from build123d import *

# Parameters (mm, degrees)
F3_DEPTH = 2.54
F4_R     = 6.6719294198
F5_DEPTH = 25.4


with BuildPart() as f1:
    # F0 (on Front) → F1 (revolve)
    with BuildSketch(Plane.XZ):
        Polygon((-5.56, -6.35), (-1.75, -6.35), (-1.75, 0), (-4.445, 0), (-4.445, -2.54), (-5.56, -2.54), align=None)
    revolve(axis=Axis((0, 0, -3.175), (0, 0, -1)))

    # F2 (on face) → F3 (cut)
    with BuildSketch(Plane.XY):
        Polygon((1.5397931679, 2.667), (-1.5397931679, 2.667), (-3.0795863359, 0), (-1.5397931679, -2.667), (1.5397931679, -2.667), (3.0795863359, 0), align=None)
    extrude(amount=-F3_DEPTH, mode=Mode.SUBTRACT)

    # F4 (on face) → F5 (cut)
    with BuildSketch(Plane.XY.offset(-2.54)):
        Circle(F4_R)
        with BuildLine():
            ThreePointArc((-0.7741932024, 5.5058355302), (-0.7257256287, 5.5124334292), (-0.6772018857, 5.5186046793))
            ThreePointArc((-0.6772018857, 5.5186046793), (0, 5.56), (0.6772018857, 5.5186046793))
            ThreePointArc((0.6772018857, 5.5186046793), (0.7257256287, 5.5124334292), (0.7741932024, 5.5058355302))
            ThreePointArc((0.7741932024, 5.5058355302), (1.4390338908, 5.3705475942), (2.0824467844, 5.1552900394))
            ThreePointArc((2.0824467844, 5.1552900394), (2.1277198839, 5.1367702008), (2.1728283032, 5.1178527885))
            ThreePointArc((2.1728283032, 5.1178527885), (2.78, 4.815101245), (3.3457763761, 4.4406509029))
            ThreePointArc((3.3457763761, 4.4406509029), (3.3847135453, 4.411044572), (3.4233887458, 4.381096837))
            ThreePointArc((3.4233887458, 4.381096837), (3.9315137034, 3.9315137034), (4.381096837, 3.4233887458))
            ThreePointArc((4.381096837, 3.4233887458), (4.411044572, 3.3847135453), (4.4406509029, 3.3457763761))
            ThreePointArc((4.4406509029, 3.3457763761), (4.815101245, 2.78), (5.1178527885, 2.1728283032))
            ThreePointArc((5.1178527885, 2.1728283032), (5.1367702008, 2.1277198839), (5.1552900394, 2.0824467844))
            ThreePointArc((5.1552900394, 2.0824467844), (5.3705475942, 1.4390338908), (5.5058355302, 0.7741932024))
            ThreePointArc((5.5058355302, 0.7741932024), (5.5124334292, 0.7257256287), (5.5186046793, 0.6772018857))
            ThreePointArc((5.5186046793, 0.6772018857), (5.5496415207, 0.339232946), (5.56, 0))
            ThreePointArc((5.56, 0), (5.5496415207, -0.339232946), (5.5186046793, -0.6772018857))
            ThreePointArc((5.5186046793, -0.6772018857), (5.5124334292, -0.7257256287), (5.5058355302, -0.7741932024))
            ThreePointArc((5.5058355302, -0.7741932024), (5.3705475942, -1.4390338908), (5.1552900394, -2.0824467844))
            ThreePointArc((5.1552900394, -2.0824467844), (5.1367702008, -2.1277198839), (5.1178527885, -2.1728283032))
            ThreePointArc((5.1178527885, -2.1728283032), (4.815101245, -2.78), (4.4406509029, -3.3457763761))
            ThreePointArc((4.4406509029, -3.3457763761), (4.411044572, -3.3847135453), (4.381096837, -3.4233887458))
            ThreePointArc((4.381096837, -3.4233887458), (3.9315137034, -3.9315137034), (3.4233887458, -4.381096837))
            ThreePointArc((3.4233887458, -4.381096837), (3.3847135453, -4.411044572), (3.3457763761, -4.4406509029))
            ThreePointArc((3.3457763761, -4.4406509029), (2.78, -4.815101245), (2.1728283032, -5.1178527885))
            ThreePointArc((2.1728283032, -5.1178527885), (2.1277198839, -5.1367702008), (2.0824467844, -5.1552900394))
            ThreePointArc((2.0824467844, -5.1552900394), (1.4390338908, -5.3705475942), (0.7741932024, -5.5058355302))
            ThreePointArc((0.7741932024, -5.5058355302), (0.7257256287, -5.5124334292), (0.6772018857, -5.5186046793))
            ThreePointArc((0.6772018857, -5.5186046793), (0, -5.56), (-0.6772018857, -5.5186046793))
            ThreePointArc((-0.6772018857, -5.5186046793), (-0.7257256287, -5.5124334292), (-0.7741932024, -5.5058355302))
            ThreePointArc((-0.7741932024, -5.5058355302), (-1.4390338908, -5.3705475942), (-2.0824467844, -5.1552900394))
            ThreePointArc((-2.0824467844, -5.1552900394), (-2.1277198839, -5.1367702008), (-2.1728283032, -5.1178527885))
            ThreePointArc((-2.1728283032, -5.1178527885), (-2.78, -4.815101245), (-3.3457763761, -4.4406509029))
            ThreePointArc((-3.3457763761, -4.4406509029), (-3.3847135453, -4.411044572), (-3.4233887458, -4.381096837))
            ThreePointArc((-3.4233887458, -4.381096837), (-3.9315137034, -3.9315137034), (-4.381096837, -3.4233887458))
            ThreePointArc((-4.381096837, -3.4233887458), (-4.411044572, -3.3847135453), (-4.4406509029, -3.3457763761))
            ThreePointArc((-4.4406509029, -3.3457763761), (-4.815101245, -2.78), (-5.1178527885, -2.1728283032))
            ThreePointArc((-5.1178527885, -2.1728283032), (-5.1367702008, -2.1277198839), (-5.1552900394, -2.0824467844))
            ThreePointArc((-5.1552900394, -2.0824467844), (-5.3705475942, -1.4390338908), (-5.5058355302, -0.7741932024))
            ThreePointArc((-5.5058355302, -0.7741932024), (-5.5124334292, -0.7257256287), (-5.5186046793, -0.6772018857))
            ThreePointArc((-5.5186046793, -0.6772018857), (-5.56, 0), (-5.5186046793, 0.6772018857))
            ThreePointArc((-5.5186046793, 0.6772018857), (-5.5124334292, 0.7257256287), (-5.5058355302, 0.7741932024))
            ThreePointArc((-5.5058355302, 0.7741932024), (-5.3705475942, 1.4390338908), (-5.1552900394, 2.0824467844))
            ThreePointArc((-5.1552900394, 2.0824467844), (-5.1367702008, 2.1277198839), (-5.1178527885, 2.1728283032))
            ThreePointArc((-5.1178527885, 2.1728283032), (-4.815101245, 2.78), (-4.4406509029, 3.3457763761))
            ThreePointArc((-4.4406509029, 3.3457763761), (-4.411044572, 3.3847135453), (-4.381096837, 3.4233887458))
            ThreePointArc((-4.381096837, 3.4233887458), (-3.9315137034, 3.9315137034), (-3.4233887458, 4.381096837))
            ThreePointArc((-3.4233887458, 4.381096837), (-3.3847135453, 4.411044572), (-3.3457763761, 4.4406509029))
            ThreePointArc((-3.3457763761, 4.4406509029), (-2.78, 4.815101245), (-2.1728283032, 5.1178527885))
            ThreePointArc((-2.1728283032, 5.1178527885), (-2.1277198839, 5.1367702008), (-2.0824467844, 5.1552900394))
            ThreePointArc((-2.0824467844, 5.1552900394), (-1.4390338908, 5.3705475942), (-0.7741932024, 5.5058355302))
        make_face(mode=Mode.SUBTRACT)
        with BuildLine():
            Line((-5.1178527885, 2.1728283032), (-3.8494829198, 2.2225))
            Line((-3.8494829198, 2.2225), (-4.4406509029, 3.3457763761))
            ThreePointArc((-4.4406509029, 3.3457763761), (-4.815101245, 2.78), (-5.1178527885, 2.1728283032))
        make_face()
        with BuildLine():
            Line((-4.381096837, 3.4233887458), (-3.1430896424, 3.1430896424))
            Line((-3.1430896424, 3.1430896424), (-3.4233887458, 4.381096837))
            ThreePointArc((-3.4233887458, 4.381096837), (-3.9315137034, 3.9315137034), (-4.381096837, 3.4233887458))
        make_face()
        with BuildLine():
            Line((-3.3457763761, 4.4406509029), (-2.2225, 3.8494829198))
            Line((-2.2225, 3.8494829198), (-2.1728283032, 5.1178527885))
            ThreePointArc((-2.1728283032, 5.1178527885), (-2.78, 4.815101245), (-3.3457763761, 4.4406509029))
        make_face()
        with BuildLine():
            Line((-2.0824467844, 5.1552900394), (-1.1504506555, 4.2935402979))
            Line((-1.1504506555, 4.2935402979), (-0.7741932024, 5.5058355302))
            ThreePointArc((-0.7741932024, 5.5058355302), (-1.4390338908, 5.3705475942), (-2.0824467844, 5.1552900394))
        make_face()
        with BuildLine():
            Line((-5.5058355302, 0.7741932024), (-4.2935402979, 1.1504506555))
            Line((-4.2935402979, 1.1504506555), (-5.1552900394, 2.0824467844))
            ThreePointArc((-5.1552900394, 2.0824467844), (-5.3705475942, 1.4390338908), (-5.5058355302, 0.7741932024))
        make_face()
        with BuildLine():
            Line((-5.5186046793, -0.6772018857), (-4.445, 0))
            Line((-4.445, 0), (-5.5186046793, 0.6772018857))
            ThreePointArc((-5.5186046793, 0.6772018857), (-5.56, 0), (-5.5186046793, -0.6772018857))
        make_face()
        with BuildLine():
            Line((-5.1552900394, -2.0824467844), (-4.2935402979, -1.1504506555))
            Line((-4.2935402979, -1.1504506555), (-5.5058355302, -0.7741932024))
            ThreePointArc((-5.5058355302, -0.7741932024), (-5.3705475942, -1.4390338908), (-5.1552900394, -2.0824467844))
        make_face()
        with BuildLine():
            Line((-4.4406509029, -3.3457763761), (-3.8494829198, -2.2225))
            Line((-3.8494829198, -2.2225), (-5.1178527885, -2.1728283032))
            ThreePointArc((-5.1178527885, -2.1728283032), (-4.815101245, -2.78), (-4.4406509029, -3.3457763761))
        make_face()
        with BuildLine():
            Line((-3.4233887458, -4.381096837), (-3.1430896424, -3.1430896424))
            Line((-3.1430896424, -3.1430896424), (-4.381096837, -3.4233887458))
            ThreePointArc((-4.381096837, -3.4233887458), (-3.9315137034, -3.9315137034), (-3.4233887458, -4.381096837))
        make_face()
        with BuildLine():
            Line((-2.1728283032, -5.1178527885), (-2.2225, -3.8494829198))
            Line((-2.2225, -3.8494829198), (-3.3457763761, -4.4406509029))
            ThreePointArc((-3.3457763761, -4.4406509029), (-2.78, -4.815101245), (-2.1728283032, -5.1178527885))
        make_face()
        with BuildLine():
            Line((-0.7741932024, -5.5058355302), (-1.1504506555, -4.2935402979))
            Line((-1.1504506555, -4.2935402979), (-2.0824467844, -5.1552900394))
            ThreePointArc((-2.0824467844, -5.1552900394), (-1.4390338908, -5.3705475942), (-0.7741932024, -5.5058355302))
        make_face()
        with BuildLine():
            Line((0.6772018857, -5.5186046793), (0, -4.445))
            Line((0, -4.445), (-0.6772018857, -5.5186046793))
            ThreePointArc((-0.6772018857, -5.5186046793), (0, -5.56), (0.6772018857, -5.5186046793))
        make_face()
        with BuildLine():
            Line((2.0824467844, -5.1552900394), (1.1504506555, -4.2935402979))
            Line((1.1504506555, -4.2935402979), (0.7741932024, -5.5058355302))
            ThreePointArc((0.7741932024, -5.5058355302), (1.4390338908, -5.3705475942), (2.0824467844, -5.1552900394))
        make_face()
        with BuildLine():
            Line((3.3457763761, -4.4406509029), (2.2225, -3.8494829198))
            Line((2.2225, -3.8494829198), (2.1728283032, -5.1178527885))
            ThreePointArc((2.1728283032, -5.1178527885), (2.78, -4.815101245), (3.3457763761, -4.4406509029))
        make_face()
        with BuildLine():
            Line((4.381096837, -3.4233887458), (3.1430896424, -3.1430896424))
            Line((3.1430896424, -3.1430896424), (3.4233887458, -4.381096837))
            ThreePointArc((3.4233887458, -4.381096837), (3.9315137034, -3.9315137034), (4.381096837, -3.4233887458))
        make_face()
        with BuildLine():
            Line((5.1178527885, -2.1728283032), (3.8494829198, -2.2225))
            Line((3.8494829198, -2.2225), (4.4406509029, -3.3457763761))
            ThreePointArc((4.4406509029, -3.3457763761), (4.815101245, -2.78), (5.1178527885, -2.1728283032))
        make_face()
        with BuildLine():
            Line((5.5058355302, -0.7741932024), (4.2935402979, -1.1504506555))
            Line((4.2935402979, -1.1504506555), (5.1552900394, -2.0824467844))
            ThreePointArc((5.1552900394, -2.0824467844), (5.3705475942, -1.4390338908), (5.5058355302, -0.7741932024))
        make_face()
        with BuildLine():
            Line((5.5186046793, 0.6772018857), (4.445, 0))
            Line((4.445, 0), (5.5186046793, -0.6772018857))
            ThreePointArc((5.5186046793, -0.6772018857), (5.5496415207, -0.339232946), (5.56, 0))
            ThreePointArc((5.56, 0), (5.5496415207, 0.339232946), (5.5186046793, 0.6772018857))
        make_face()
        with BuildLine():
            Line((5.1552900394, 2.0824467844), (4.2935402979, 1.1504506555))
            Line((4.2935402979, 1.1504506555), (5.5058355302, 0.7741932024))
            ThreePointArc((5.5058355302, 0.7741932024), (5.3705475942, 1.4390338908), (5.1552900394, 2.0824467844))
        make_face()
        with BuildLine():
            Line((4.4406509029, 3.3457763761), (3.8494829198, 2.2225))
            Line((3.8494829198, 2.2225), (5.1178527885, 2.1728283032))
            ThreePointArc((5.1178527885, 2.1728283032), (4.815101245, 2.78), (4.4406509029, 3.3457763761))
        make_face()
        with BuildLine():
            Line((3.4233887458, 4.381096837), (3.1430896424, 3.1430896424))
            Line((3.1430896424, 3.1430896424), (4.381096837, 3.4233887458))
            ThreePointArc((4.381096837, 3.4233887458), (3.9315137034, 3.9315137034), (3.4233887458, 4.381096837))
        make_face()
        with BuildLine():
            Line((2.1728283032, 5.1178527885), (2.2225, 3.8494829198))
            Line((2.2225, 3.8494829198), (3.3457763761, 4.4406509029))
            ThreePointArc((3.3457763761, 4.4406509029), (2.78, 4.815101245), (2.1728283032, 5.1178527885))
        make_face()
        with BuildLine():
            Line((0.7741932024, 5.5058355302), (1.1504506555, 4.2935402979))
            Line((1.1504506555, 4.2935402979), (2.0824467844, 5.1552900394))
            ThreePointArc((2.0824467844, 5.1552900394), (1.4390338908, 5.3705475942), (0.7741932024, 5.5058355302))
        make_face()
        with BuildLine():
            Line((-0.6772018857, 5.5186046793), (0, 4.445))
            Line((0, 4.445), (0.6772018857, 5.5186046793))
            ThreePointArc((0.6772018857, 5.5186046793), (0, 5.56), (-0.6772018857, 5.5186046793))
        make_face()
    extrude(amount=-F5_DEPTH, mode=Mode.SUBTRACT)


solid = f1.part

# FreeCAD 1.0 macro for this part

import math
import FreeCAD as App
import Part
import Sketcher

V = App.Vector
Q = App.Units.Quantity

doc = App.newDocument("Part")
body = doc.addObject("PartDesign::Body", "Body")

# Sketch on XZ plane
sketch1 = body.newObject("Sketcher::SketchObject", "Sketch")
sketch1.AttachmentSupport = (doc.getObject("XZ_Plane"), [""])
sketch1.MapMode = "FlatFace"
sketch1.addGeometry([
    Part.LineSegment(V(-5.6, -6.3, 0), V(-1.8, -6.3, 0)),  # 0
    Part.LineSegment(V(-1.8, -6.3, 0), V(-1.8, 0, 0)),  # 1
    Part.LineSegment(V(-1.8, 0, 0), V(-4.4, 0, 0)),  # 2
    Part.LineSegment(V(-4.4, 0, 0), V(-4.4, -2.5, 0)),  # 3
    Part.LineSegment(V(-4.4, -2.5, 0), V(-5.6, -2.5, 0)),  # 4
    Part.LineSegment(V(-5.6, -2.5, 0), V(-5.6, -6.3, 0)),  # 5
], False)
sketch1.addConstraint([
    Sketcher.Constraint("Coincident", 0, 2, 1, 1),
    Sketcher.Constraint("Coincident", 1, 2, 2, 1),
    Sketcher.Constraint("Coincident", 2, 2, 3, 1),
    Sketcher.Constraint("Coincident", 3, 2, 4, 1),
    Sketcher.Constraint("Coincident", 4, 2, 5, 1),
    Sketcher.Constraint("Coincident", 5, 2, 0, 1),
    Sketcher.Constraint("Horizontal", 0),
    Sketcher.Constraint("Vertical", 1),
    Sketcher.Constraint("Horizontal", 2),
    Sketcher.Constraint("Vertical", 3),
    Sketcher.Constraint("Horizontal", 4),
    Sketcher.Constraint("Vertical", 5),
    Sketcher.Constraint("PointOnObject", 1, 2, -1),
    Sketcher.Constraint("Equal", 0, 5),
    Sketcher.Constraint("DistanceY", 3, 2, 3, 1, Q("0.1 in")),
    Sketcher.Constraint("DistanceX", 0, 1, 0, 2, Q("0.15 in")),
    Sketcher.Constraint("DistanceX", 2, 2, -1, 1, Q("0.175 in")),
    Sketcher.Constraint("DistanceX", 2, 2, 2, 1, Q("2.695 mm")),
])
revolution = body.newObject("PartDesign::Revolution", "Revolution")
revolution.Profile = sketch1
revolution.ReferenceAxis = (sketch1, ["V_Axis"])
revolution.Angle = 360

# Sketch on XY plane
sketch2 = body.newObject("Sketcher::SketchObject", "Sketch001")
sketch2.AttachmentSupport = (doc.getObject("XY_Plane"), [""])
sketch2.MapMode = "FlatFace"
sketch2.addGeometry([
    Part.LineSegment(V(1.5, 2.7, 0), V(-1.5, 2.7, 0)),  # 0
    Part.LineSegment(V(-1.5, 2.7, 0), V(-3.1, 0, 0)),  # 1
    Part.LineSegment(V(-3.1, 0, 0), V(-1.5, -2.7, 0)),  # 2
    Part.LineSegment(V(-1.5, -2.7, 0), V(1.5, -2.7, 0)),  # 3
    Part.LineSegment(V(1.5, -2.7, 0), V(3.1, 0, 0)),  # 4
    Part.LineSegment(V(3.1, 0, 0), V(1.5, 2.7, 0)),  # 5
], False)
sketch2.addConstraint([
    Sketcher.Constraint("Coincident", 0, 2, 1, 1),
    Sketcher.Constraint("Coincident", 1, 2, 2, 1),
    Sketcher.Constraint("Coincident", 2, 2, 3, 1),
    Sketcher.Constraint("Coincident", 3, 2, 4, 1),
    Sketcher.Constraint("Coincident", 4, 2, 5, 1),
    Sketcher.Constraint("Coincident", 5, 2, 0, 1),
    Sketcher.Constraint("Horizontal", 0),
    Sketcher.Constraint("Horizontal", 3),
    Sketcher.Constraint("Symmetric", 0, 2, 3, 2, -1, 1),
    Sketcher.Constraint("Symmetric", 1, 2, 4, 2, -1, 1),
    Sketcher.Constraint("PointOnObject", 1, 2, -1),
    Sketcher.Constraint("Parallel", 2, 5),
    Sketcher.Constraint("Vertical", 0, 2, 2, 2),
    Sketcher.Constraint("Angle", 1, Q("-120 deg")),
    Sketcher.Constraint("DistanceY", 2, 2, 0, 2, Q("0.21 in")),
    Sketcher.Constraint("DistanceX", 0, 2, 0, 1, Q("3.079586 mm")),
])
pocket1 = body.newObject("PartDesign::Pocket", "Pocket")
pocket1.Profile = sketch2
pocket1.Length = Q("0.1 in")

# Sketch on XY plane
sketch3 = body.newObject("Sketcher::SketchObject", "Sketch002")
sketch3.AttachmentSupport = (doc.getObject("XY_Plane"), [""])
sketch3.MapMode = "FlatFace"
sketch3.AttachmentOffset = App.Placement(V(0, 0, -0.1 * 25.4), App.Rotation())
sketch3.addGeometry([
    Part.Circle(V(0, 0, 0), V(0, 0, 1), 6.67),  # 0
    Part.ArcOfCircle(Part.Circle(V(0, 0, 0), V(0, 0, 1), 5.56), math.radians(97), math.radians(98)),  # 1
    Part.LineSegment(V(-0.68, 5.52, 0), V(0, 4.45, 0)),  # 2
    Part.LineSegment(V(0, 4.45, 0), V(0.68, 5.52, 0)),  # 3
    Part.ArcOfCircle(Part.Circle(V(0, 0, 0), V(0, 0, 1), 5.56), math.radians(82), math.radians(83)),  # 4
    Part.LineSegment(V(0.77, 5.51, 0), V(1.15, 4.29, 0)),  # 5
    Part.LineSegment(V(1.15, 4.29, 0), V(2.08, 5.16, 0)),  # 6
    Part.ArcOfCircle(Part.Circle(V(0, 0, 0), V(0, 0, 1), 5.56), math.radians(67), math.radians(68)),  # 7
    Part.LineSegment(V(2.17, 5.12, 0), V(2.22, 3.85, 0)),  # 8
    Part.LineSegment(V(2.22, 3.85, 0), V(3.35, 4.44, 0)),  # 9
    Part.ArcOfCircle(Part.Circle(V(0, 0, 0), V(0, 0, 1), 5.56), math.radians(52), math.radians(53)),  # 10
    Part.LineSegment(V(3.42, 4.38, 0), V(3.14, 3.14, 0)),  # 11
    Part.LineSegment(V(3.14, 3.14, 0), V(4.38, 3.42, 0)),  # 12
    Part.ArcOfCircle(Part.Circle(V(0, 0, 0), V(0, 0, 1), 5.56), math.radians(37), math.radians(38)),  # 13
    Part.LineSegment(V(4.44, 3.35, 0), V(3.85, 2.22, 0)),  # 14
    Part.LineSegment(V(3.85, 2.22, 0), V(5.12, 2.17, 0)),  # 15
    Part.ArcOfCircle(Part.Circle(V(0, 0, 0), V(0, 0, 1), 5.56), math.radians(22), math.radians(23)),  # 16
    Part.LineSegment(V(5.16, 2.08, 0), V(4.29, 1.15, 0)),  # 17
    Part.LineSegment(V(4.29, 1.15, 0), V(5.51, 0.77, 0)),  # 18
    Part.ArcOfCircle(Part.Circle(V(0, 0, 0), V(0, 0, 1), 5.56), math.radians(7), math.radians(8)),  # 19
    Part.LineSegment(V(5.52, 0.68, 0), V(4.45, 0, 0)),  # 20
    Part.LineSegment(V(4.45, 0, 0), V(5.52, -0.68, 0)),  # 21
    Part.ArcOfCircle(Part.Circle(V(0, 0, 0), V(0, 0, 1), 5.56), math.radians(-8), math.radians(-7)),  # 22
    Part.LineSegment(V(5.51, -0.77, 0), V(4.29, -1.15, 0)),  # 23
    Part.LineSegment(V(4.29, -1.15, 0), V(5.16, -2.08, 0)),  # 24
    Part.ArcOfCircle(Part.Circle(V(0, 0, 0), V(0, 0, 1), 5.56), math.radians(-23), math.radians(-22)),  # 25
    Part.LineSegment(V(5.12, -2.17, 0), V(3.85, -2.22, 0)),  # 26
    Part.LineSegment(V(3.85, -2.22, 0), V(4.44, -3.35, 0)),  # 27
    Part.ArcOfCircle(Part.Circle(V(0, 0, 0), V(0, 0, 1), 5.56), math.radians(-38), math.radians(-37)),  # 28
    Part.LineSegment(V(4.38, -3.42, 0), V(3.14, -3.14, 0)),  # 29
    Part.LineSegment(V(3.14, -3.14, 0), V(3.42, -4.38, 0)),  # 30
    Part.ArcOfCircle(Part.Circle(V(0, 0, 0), V(0, 0, 1), 5.56), math.radians(-53), math.radians(-52)),  # 31
    Part.LineSegment(V(3.35, -4.44, 0), V(2.22, -3.85, 0)),  # 32
    Part.LineSegment(V(2.22, -3.85, 0), V(2.17, -5.12, 0)),  # 33
    Part.ArcOfCircle(Part.Circle(V(0, 0, 0), V(0, 0, 1), 5.56), math.radians(-68), math.radians(-67)),  # 34
    Part.LineSegment(V(2.08, -5.16, 0), V(1.15, -4.29, 0)),  # 35
    Part.LineSegment(V(1.15, -4.29, 0), V(0.77, -5.51, 0)),  # 36
    Part.ArcOfCircle(Part.Circle(V(0, 0, 0), V(0, 0, 1), 5.56), math.radians(-83), math.radians(-82)),  # 37
    Part.LineSegment(V(0.68, -5.52, 0), V(0, -4.45, 0)),  # 38
    Part.LineSegment(V(0, -4.45, 0), V(-0.68, -5.52, 0)),  # 39
    Part.ArcOfCircle(Part.Circle(V(0, 0, 0), V(0, 0, 1), 5.56), math.radians(-98), math.radians(-97)),  # 40
    Part.LineSegment(V(-0.77, -5.51, 0), V(-1.15, -4.29, 0)),  # 41
    Part.LineSegment(V(-1.15, -4.29, 0), V(-2.08, -5.16, 0)),  # 42
    Part.ArcOfCircle(Part.Circle(V(0, 0, 0), V(0, 0, 1), 5.56), math.radians(-113), math.radians(-112)),  # 43
    Part.LineSegment(V(-2.17, -5.12, 0), V(-2.22, -3.85, 0)),  # 44
    Part.LineSegment(V(-2.22, -3.85, 0), V(-3.35, -4.44, 0)),  # 45
    Part.ArcOfCircle(Part.Circle(V(0, 0, 0), V(0, 0, 1), 5.56), math.radians(-128), math.radians(-127)),  # 46
    Part.LineSegment(V(-3.42, -4.38, 0), V(-3.14, -3.14, 0)),  # 47
    Part.LineSegment(V(-3.14, -3.14, 0), V(-4.38, -3.42, 0)),  # 48
    Part.ArcOfCircle(Part.Circle(V(0, 0, 0), V(0, 0, 1), 5.56), math.radians(-143), math.radians(-142)),  # 49
    Part.LineSegment(V(-4.44, -3.35, 0), V(-3.85, -2.22, 0)),  # 50
    Part.LineSegment(V(-3.85, -2.22, 0), V(-5.12, -2.17, 0)),  # 51
    Part.ArcOfCircle(Part.Circle(V(0, 0, 0), V(0, 0, 1), 5.56), math.radians(-158), math.radians(-157)),  # 52
    Part.LineSegment(V(-5.16, -2.08, 0), V(-4.29, -1.15, 0)),  # 53
    Part.LineSegment(V(-4.29, -1.15, 0), V(-5.51, -0.77, 0)),  # 54
    Part.ArcOfCircle(Part.Circle(V(0, 0, 0), V(0, 0, 1), 5.56), math.radians(-173), math.radians(-172)),  # 55
    Part.LineSegment(V(-5.52, -0.68, 0), V(-4.45, 0, 0)),  # 56
    Part.LineSegment(V(-4.45, 0, 0), V(-5.52, 0.68, 0)),  # 57
    Part.ArcOfCircle(Part.Circle(V(0, 0, 0), V(0, 0, 1), 5.56), math.radians(172), math.radians(173)),  # 58
    Part.LineSegment(V(-5.51, 0.77, 0), V(-4.29, 1.15, 0)),  # 59
    Part.LineSegment(V(-4.29, 1.15, 0), V(-5.16, 2.08, 0)),  # 60
    Part.ArcOfCircle(Part.Circle(V(0, 0, 0), V(0, 0, 1), 5.56), math.radians(157), math.radians(158)),  # 61
    Part.LineSegment(V(-5.12, 2.17, 0), V(-3.85, 2.22, 0)),  # 62
    Part.LineSegment(V(-3.85, 2.22, 0), V(-4.44, 3.35, 0)),  # 63
    Part.ArcOfCircle(Part.Circle(V(0, 0, 0), V(0, 0, 1), 5.56), math.radians(142), math.radians(143)),  # 64
    Part.LineSegment(V(-4.38, 3.42, 0), V(-3.14, 3.14, 0)),  # 65
    Part.LineSegment(V(-3.14, 3.14, 0), V(-3.42, 4.38, 0)),  # 66
    Part.ArcOfCircle(Part.Circle(V(0, 0, 0), V(0, 0, 1), 5.56), math.radians(127), math.radians(128)),  # 67
    Part.LineSegment(V(-3.35, 4.44, 0), V(-2.22, 3.85, 0)),  # 68
    Part.LineSegment(V(-2.22, 3.85, 0), V(-2.17, 5.12, 0)),  # 69
    Part.ArcOfCircle(Part.Circle(V(0, 0, 0), V(0, 0, 1), 5.56), math.radians(112), math.radians(113)),  # 70
    Part.LineSegment(V(-2.08, 5.16, 0), V(-1.15, 4.29, 0)),  # 71
    Part.LineSegment(V(-1.15, 4.29, 0), V(-0.77, 5.51, 0)),  # 72
], False)
sketch3.addConstraint([
    Sketcher.Constraint("Coincident", 1, 1, 2, 1),
    Sketcher.Constraint("Coincident", 2, 2, 3, 1),
    Sketcher.Constraint("Coincident", 3, 2, 4, 2),
    Sketcher.Constraint("Coincident", 4, 1, 5, 1),
    Sketcher.Constraint("Coincident", 5, 2, 6, 1),
    Sketcher.Constraint("Coincident", 6, 2, 7, 2),
    Sketcher.Constraint("Coincident", 7, 1, 8, 1),
    Sketcher.Constraint("Coincident", 8, 2, 9, 1),
    Sketcher.Constraint("Coincident", 9, 2, 10, 2),
    Sketcher.Constraint("Coincident", 10, 1, 11, 1),
    Sketcher.Constraint("Coincident", 11, 2, 12, 1),
    Sketcher.Constraint("Coincident", 12, 2, 13, 2),
    Sketcher.Constraint("Coincident", 13, 1, 14, 1),
    Sketcher.Constraint("Coincident", 14, 2, 15, 1),
    Sketcher.Constraint("Coincident", 15, 2, 16, 2),
    Sketcher.Constraint("Coincident", 16, 1, 17, 1),
    Sketcher.Constraint("Coincident", 17, 2, 18, 1),
    Sketcher.Constraint("Coincident", 18, 2, 19, 2),
    Sketcher.Constraint("Coincident", 19, 1, 20, 1),
    Sketcher.Constraint("Coincident", 20, 2, 21, 1),
    Sketcher.Constraint("Coincident", 21, 2, 22, 2),
    Sketcher.Constraint("Coincident", 22, 1, 23, 1),
    Sketcher.Constraint("Coincident", 23, 2, 24, 1),
    Sketcher.Constraint("Coincident", 24, 2, 25, 2),
    Sketcher.Constraint("Coincident", 25, 1, 26, 1),
    Sketcher.Constraint("Coincident", 26, 2, 27, 1),
    Sketcher.Constraint("Coincident", 27, 2, 28, 2),
    Sketcher.Constraint("Coincident", 28, 1, 29, 1),
    Sketcher.Constraint("Coincident", 29, 2, 30, 1),
    Sketcher.Constraint("Coincident", 30, 2, 31, 2),
    Sketcher.Constraint("Coincident", 31, 1, 32, 1),
    Sketcher.Constraint("Coincident", 32, 2, 33, 1),
    Sketcher.Constraint("Coincident", 33, 2, 34, 2),
    Sketcher.Constraint("Coincident", 34, 1, 35, 1),
    Sketcher.Constraint("Coincident", 35, 2, 36, 1),
    Sketcher.Constraint("Coincident", 36, 2, 37, 2),
    Sketcher.Constraint("Coincident", 37, 1, 38, 1),
    Sketcher.Constraint("Coincident", 38, 2, 39, 1),
    Sketcher.Constraint("Coincident", 39, 2, 40, 2),
    Sketcher.Constraint("Coincident", 40, 1, 41, 1),
    Sketcher.Constraint("Coincident", 41, 2, 42, 1),
    Sketcher.Constraint("Coincident", 42, 2, 43, 2),
    Sketcher.Constraint("Coincident", 43, 1, 44, 1),
    Sketcher.Constraint("Coincident", 44, 2, 45, 1),
    Sketcher.Constraint("Coincident", 45, 2, 46, 2),
    Sketcher.Constraint("Coincident", 46, 1, 47, 1),
    Sketcher.Constraint("Coincident", 47, 2, 48, 1),
    Sketcher.Constraint("Coincident", 48, 2, 49, 2),
    Sketcher.Constraint("Coincident", 49, 1, 50, 1),
    Sketcher.Constraint("Coincident", 50, 2, 51, 1),
    Sketcher.Constraint("Coincident", 51, 2, 52, 2),
    Sketcher.Constraint("Coincident", 52, 1, 53, 1),
    Sketcher.Constraint("Coincident", 53, 2, 54, 1),
    Sketcher.Constraint("Coincident", 54, 2, 55, 2),
    Sketcher.Constraint("Coincident", 55, 1, 56, 1),
    Sketcher.Constraint("Coincident", 56, 2, 57, 1),
    Sketcher.Constraint("Coincident", 57, 2, 58, 2),
    Sketcher.Constraint("Coincident", 58, 1, 59, 1),
    Sketcher.Constraint("Coincident", 59, 2, 60, 1),
    Sketcher.Constraint("Coincident", 60, 2, 61, 2),
    Sketcher.Constraint("Coincident", 61, 1, 62, 1),
    Sketcher.Constraint("Coincident", 62, 2, 63, 1),
    Sketcher.Constraint("Coincident", 63, 2, 64, 2),
    Sketcher.Constraint("Coincident", 64, 1, 65, 1),
    Sketcher.Constraint("Coincident", 65, 2, 66, 1),
    Sketcher.Constraint("Coincident", 66, 2, 67, 2),
    Sketcher.Constraint("Coincident", 67, 1, 68, 1),
    Sketcher.Constraint("Coincident", 68, 2, 69, 1),
    Sketcher.Constraint("Coincident", 69, 2, 70, 2),
    Sketcher.Constraint("Coincident", 70, 1, 71, 1),
    Sketcher.Constraint("Coincident", 71, 2, 72, 1),
    Sketcher.Constraint("Coincident", 72, 2, 1, 2),
    Sketcher.Constraint("Coincident", 0, 3, -1, 1),
    Sketcher.Constraint("Coincident", 1, 3, -1, 1),
    Sketcher.Constraint("Coincident", 4, 3, -1, 1),
    Sketcher.Constraint("Coincident", 7, 3, -1, 1),
    Sketcher.Constraint("Coincident", 10, 3, -1, 1),
    Sketcher.Constraint("Coincident", 13, 3, -1, 1),
    Sketcher.Constraint("Coincident", 16, 3, -1, 1),
    Sketcher.Constraint("Coincident", 19, 3, -1, 1),
    Sketcher.Constraint("Coincident", 22, 3, -1, 1),
    Sketcher.Constraint("Coincident", 25, 3, -1, 1),
    Sketcher.Constraint("Coincident", 28, 3, -1, 1),
    Sketcher.Constraint("Coincident", 31, 3, -1, 1),
    Sketcher.Constraint("Coincident", 34, 3, -1, 1),
    Sketcher.Constraint("Coincident", 37, 3, -1, 1),
    Sketcher.Constraint("Coincident", 40, 3, -1, 1),
    Sketcher.Constraint("Coincident", 43, 3, -1, 1),
    Sketcher.Constraint("Coincident", 46, 3, -1, 1),
    Sketcher.Constraint("Coincident", 49, 3, -1, 1),
    Sketcher.Constraint("Coincident", 52, 3, -1, 1),
    Sketcher.Constraint("Coincident", 55, 3, -1, 1),
    Sketcher.Constraint("Coincident", 58, 3, -1, 1),
    Sketcher.Constraint("Coincident", 61, 3, -1, 1),
    Sketcher.Constraint("Coincident", 64, 3, -1, 1),
    Sketcher.Constraint("Coincident", 67, 3, -1, 1),
    Sketcher.Constraint("Coincident", 70, 3, -1, 1),
    Sketcher.Constraint("Equal", 1, 4),
    Sketcher.Constraint("Equal", 7, 10),
    Sketcher.Constraint("Equal", 10, 13),
    Sketcher.Constraint("Equal", 13, 16),
    Sketcher.Constraint("Equal", 13, 19),
    Sketcher.Constraint("Equal", 19, 22),
    Sketcher.Constraint("Equal", 16, 25),
    Sketcher.Constraint("Equal", 25, 28),
    Sketcher.Constraint("Equal", 28, 31),
    Sketcher.Constraint("Equal", 31, 34),
    Sketcher.Constraint("Equal", 31, 37),
    Sketcher.Constraint("Equal", 37, 40),
    Sketcher.Constraint("Equal", 34, 43),
    Sketcher.Constraint("Equal", 43, 46),
    Sketcher.Constraint("Equal", 46, 49),
    Sketcher.Constraint("Equal", 49, 52),
    Sketcher.Constraint("Equal", 49, 55),
    Sketcher.Constraint("Equal", 55, 58),
    Sketcher.Constraint("Equal", 52, 61),
    Sketcher.Constraint("Equal", 61, 64),
    Sketcher.Constraint("Equal", 64, 67),
    Sketcher.Constraint("Equal", 67, 70),
    Sketcher.Constraint("Symmetric", 1, 1, 37, 1, -1, 1),
    Sketcher.Constraint("Symmetric", 2, 2, 38, 2, -1, 1),
    Sketcher.Constraint("Symmetric", 5, 2, 41, 2, -1, 1),
    Sketcher.Constraint("Symmetric", 8, 2, 44, 2, -1, 1),
    Sketcher.Constraint("Symmetric", 11, 2, 47, 2, -1, 1),
    Sketcher.Constraint("Symmetric", 14, 2, 50, 2, -1, 1),
    Sketcher.Constraint("Symmetric", 17, 2, 53, 2, -1, 1),
    Sketcher.Constraint("Symmetric", 20, 2, 56, 2, -1, 1),
    Sketcher.Constraint("Symmetric", 23, 2, 59, 2, -1, 1),
    Sketcher.Constraint("Symmetric", 26, 2, 62, 2, -1, 1),
    Sketcher.Constraint("Symmetric", 29, 2, 65, 2, -1, 1),
    Sketcher.Constraint("Symmetric", 32, 2, 68, 2, -1, 1),
    Sketcher.Constraint("Symmetric", 35, 2, 71, 2, -1, 1),
    Sketcher.Constraint("Symmetric", 35, 2, 41, 2, -2),
    Sketcher.Constraint("Symmetric", 32, 2, 44, 2, -2),
    Sketcher.Constraint("Symmetric", 29, 2, 47, 2, -2),
    Sketcher.Constraint("Symmetric", 26, 2, 50, 2, -2),
    Sketcher.Constraint("Symmetric", 23, 2, 53, 2, -2),
    Sketcher.Constraint("PointOnObject", 2, 2, -2),
    Sketcher.Constraint("PointOnObject", 20, 2, -1),
    Sketcher.Constraint("Perpendicular", 2, 20),
    Sketcher.Constraint("Perpendicular", 3, 21),
    Sketcher.Constraint("Perpendicular", 5, 23),
    Sketcher.Constraint("Perpendicular", 6, 24),
    Sketcher.Constraint("Perpendicular", 8, 26),
    Sketcher.Constraint("Perpendicular", 9, 27),
    Sketcher.Constraint("Perpendicular", 11, 29),
    Sketcher.Constraint("Perpendicular", 12, 30),
    Sketcher.Constraint("Perpendicular", 14, 32),
    Sketcher.Constraint("Perpendicular", 15, 33),
    Sketcher.Constraint("Perpendicular", 17, 35),
    Sketcher.Constraint("Perpendicular", 18, 36),
    Sketcher.Constraint("Perpendicular", 21, 39),
    Sketcher.Constraint("Perpendicular", 23, 41),
    Sketcher.Constraint("Perpendicular", 24, 42),
    Sketcher.Constraint("Perpendicular", 26, 44),
    Sketcher.Constraint("Perpendicular", 27, 45),
    Sketcher.Constraint("Perpendicular", 29, 47),
    Sketcher.Constraint("Perpendicular", 30, 48),
    Sketcher.Constraint("Perpendicular", 32, 50),
    Sketcher.Constraint("Perpendicular", 33, 51),
    Sketcher.Constraint("Perpendicular", 35, 53),
    Sketcher.Constraint("Perpendicular", 36, 54),
    Sketcher.Constraint("Perpendicular", 38, 56),
    Sketcher.Constraint("Perpendicular", 39, 57),
    Sketcher.Constraint("Perpendicular", 41, 59),
    Sketcher.Constraint("Perpendicular", 42, 60),
    Sketcher.Constraint("Perpendicular", 44, 62),
    Sketcher.Constraint("Perpendicular", 45, 63),
    Sketcher.Constraint("Perpendicular", 47, 65),
    Sketcher.Constraint("Perpendicular", 48, 66),
    Sketcher.Constraint("Perpendicular", 50, 68),
    Sketcher.Constraint("Perpendicular", 51, 69),
    Sketcher.Constraint("Perpendicular", 53, 71),
    Sketcher.Constraint("Perpendicular", 54, 72),
    Sketcher.Constraint("Horizontal", 1, 1, 3, 2),
    Sketcher.Constraint("Horizontal", 36, 2, 40, 1),
    Sketcher.Constraint("Horizontal", 34, 1, 42, 2),
    Sketcher.Constraint("Horizontal", 33, 2, 43, 1),
    Sketcher.Constraint("Horizontal", 31, 1, 45, 2),
    Sketcher.Constraint("Horizontal", 30, 2, 46, 1),
    Sketcher.Constraint("Equal", 3, 5),
    Sketcher.Constraint("Equal", 5, 6),
    Sketcher.Constraint("Equal", 6, 8),
    Sketcher.Constraint("Equal", 8, 9),
    Sketcher.Constraint("Equal", 9, 11),
    Sketcher.Constraint("Equal", 11, 12),
    Sketcher.Constraint("Equal", 12, 14),
    Sketcher.Constraint("Equal", 14, 15),
    Sketcher.Constraint("Equal", 15, 17),
    Sketcher.Constraint("Equal", 17, 18),
    Sketcher.Constraint("Equal", 18, 20),
    Sketcher.Constraint("Radius", 1, Q("5.560002 mm")),
    Sketcher.Constraint("Diameter", 0, Q("13.343859 mm")),
    Sketcher.Constraint("DistanceY", -1, 1, 2, 2, Q("0.175 in")),
    Sketcher.Constraint("DistanceX", -1, 1, 8, 2, Q("0.0875 in")),
    Sketcher.Constraint("DistanceX", 1, 1, -1, 1, Q("0.677202 mm")),
    Sketcher.Constraint("DistanceX", -1, 1, 5, 2, Q("1.150451 mm")),
    Sketcher.Constraint("DistanceY", -1, 1, 5, 2, Q("4.29354 mm")),
    Sketcher.Constraint("DistanceX", -1, 1, 7, 1, Q("2.172828 mm")),
    Sketcher.Constraint("DistanceX", -1, 1, 10, 1, Q("3.423389 mm")),
])
pocket2 = body.newObject("PartDesign::Pocket", "Pocket001")
pocket2.Profile = sketch3
pocket2.Length = Q("1 in")

doc.recompute()
